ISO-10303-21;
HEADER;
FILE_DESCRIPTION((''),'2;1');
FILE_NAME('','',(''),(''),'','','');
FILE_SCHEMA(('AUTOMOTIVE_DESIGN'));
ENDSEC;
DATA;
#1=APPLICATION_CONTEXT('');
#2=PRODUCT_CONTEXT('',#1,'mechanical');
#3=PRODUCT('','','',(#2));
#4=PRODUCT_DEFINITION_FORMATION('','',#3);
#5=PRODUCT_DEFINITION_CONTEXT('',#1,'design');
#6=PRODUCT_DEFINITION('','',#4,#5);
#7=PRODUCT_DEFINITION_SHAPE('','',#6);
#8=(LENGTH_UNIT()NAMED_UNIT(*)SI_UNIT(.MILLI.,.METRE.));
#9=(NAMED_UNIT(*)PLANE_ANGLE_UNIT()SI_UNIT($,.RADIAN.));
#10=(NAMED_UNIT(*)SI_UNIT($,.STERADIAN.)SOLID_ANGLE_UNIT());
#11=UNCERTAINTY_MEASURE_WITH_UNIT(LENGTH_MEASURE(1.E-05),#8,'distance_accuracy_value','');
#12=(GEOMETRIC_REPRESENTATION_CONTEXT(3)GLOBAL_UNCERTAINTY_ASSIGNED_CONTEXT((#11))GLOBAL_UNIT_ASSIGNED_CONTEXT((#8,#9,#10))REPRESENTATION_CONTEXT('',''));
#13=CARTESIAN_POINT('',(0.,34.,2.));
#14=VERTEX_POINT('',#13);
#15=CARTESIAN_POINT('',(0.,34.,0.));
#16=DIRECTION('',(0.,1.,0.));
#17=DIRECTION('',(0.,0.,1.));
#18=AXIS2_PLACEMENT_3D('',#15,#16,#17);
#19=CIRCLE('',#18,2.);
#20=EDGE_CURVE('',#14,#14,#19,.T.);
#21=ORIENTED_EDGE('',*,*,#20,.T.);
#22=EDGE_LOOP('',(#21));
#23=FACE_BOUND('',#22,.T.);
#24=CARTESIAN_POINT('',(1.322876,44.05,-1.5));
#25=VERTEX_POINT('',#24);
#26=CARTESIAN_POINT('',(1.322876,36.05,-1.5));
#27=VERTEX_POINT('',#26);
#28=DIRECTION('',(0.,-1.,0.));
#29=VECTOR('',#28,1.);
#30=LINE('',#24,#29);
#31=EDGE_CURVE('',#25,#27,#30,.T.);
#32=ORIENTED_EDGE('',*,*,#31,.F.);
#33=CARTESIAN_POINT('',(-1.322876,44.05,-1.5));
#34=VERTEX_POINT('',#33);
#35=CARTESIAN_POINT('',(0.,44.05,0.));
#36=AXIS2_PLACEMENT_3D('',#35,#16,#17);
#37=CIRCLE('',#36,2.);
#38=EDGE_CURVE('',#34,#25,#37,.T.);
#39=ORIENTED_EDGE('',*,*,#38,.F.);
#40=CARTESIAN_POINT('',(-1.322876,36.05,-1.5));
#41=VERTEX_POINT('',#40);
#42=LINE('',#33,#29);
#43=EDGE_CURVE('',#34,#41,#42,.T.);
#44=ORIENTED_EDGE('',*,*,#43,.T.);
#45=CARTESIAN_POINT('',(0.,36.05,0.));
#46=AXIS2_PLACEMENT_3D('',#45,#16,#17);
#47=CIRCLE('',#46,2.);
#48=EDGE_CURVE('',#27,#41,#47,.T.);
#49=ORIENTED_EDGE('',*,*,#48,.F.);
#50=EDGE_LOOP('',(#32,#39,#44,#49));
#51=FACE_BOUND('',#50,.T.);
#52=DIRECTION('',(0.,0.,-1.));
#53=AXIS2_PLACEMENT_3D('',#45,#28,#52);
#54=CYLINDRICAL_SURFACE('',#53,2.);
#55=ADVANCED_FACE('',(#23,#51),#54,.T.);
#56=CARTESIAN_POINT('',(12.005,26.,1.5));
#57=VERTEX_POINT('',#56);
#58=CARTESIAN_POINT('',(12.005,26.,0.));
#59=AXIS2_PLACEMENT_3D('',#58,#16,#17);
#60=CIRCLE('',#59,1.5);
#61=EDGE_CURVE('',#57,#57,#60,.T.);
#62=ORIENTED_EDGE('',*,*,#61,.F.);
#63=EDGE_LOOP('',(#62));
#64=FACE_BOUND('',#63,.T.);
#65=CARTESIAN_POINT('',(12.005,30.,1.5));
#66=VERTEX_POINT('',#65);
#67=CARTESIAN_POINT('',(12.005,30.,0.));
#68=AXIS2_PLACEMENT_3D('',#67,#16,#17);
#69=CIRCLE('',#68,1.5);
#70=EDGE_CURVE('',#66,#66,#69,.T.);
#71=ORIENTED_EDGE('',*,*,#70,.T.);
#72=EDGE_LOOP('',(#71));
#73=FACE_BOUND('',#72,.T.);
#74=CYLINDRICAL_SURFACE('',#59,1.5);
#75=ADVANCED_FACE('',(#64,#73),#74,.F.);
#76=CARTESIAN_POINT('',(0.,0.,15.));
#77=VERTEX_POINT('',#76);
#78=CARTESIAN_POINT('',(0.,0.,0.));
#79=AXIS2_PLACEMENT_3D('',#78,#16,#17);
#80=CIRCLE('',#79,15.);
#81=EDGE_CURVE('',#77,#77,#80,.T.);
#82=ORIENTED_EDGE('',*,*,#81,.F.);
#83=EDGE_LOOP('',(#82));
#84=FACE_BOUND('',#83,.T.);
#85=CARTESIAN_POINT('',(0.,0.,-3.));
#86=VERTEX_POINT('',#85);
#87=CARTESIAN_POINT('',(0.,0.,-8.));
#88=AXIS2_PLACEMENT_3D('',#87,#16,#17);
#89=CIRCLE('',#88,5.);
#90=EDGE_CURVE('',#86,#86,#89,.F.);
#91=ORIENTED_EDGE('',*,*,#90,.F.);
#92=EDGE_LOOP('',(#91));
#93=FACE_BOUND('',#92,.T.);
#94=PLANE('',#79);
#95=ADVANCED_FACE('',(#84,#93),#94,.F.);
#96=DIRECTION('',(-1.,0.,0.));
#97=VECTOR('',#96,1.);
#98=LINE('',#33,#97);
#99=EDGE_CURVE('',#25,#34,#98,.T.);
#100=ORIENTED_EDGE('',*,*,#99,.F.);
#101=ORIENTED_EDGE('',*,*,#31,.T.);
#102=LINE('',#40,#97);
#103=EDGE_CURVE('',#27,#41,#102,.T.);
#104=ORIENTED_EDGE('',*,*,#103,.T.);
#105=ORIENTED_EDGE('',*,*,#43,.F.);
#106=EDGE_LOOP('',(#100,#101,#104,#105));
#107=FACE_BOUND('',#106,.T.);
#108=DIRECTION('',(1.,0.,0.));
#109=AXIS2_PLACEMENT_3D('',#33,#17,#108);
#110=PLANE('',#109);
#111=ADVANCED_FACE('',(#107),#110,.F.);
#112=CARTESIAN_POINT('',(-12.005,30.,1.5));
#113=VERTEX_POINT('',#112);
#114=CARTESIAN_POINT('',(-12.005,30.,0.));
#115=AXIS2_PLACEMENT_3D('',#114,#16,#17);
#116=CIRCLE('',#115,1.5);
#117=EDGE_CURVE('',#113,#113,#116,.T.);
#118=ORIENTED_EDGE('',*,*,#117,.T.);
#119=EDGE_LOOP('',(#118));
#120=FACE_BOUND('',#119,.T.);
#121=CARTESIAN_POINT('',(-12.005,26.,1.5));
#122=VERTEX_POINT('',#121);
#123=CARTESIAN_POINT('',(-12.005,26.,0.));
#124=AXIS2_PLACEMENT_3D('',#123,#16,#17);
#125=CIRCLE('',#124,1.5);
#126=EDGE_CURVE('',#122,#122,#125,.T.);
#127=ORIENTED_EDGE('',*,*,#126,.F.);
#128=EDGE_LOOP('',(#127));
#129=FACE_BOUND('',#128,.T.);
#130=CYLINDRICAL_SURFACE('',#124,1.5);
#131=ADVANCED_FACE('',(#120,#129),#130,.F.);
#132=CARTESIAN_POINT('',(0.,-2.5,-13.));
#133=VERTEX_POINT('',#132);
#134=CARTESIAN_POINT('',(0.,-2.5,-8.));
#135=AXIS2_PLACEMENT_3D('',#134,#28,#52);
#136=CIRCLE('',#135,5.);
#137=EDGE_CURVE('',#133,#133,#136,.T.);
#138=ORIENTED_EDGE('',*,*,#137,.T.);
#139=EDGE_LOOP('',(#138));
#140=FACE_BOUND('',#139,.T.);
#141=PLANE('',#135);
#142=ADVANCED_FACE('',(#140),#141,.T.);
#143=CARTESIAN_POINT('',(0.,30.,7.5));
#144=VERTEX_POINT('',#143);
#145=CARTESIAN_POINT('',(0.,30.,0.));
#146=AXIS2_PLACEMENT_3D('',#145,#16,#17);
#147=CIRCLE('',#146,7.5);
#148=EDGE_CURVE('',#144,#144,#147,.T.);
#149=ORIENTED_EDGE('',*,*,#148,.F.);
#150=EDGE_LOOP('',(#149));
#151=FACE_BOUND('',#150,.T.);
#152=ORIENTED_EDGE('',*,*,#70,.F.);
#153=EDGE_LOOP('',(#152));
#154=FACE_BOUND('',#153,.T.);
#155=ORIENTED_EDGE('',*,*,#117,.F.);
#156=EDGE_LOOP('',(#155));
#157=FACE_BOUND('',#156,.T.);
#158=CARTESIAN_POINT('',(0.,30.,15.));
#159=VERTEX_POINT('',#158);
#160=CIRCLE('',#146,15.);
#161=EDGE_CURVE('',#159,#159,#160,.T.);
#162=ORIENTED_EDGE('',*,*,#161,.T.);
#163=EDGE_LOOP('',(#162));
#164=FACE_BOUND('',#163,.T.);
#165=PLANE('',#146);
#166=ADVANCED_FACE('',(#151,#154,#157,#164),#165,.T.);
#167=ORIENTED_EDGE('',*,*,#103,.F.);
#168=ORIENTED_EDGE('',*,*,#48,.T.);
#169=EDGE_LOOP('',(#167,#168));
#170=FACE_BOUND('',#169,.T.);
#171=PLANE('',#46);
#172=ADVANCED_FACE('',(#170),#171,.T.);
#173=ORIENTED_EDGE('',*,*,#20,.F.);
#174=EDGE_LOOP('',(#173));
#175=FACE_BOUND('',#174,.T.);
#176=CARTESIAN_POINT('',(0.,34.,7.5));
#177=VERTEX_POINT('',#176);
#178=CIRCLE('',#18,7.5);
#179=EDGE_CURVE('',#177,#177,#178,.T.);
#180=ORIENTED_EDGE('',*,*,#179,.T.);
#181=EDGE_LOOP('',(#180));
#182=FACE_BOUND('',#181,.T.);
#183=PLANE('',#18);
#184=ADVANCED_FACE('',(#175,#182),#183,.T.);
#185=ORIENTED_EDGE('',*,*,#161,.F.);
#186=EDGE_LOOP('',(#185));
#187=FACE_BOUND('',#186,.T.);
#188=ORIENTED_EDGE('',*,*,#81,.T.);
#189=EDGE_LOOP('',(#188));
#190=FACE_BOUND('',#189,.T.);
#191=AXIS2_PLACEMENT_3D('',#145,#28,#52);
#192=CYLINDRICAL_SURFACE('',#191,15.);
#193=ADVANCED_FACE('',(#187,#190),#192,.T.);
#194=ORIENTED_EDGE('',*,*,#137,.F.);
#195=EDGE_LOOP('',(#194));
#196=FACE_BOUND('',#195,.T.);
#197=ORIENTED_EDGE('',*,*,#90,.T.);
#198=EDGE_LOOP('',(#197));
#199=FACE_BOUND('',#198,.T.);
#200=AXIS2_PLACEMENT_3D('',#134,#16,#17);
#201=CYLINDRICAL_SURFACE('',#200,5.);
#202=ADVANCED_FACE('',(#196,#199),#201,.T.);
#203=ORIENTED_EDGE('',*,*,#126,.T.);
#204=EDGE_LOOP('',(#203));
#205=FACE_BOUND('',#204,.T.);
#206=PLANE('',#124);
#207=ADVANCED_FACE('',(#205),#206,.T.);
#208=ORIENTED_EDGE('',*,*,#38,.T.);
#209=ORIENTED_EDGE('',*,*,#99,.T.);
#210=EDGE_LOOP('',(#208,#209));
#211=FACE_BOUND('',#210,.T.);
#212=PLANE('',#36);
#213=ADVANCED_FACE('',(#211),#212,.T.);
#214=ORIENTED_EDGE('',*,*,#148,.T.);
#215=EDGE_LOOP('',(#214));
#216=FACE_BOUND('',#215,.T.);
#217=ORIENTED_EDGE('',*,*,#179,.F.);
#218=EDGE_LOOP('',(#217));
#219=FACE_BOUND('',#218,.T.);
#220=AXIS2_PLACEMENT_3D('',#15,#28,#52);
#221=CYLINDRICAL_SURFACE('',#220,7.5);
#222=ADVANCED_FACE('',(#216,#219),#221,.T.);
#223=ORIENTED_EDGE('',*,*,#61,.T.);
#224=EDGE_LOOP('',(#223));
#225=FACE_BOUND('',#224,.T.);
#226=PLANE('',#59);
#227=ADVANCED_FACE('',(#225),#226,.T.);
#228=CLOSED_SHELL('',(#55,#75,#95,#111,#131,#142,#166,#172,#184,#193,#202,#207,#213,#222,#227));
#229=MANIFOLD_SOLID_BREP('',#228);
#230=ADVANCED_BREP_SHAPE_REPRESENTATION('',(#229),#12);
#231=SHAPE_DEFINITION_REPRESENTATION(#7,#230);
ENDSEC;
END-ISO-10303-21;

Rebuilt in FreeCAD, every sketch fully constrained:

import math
import FreeCAD as App
import Part
import Sketcher

doc = App.newDocument("Part")
params = doc.addObject("Spreadsheet::Sheet", "Params")
for row, (alias, value) in enumerate([
    ("sketch1_diameter", "30 mm"),
    ("pad1_length", "30 mm"),
    ("sketch2_diameter", "3 mm"),
    ("pocket1_length", "4 mm"),
    ("sketch3_diameter", "15 mm"),
    ("pad2_length", "4 mm"),
    ("sketch4_diameter", "4 mm"),
    ("pad3_length", "2.05 mm"),
    ("sketch5_radius", "2 mm"),
    ("pad4_length", "8 mm"),
    ("sketch6_diameter", "10 mm"),
    ("pad5_length", "2.5 mm"),
], start=1):
    params.set(f"A{row}", alias)
    params.set(f"B{row}", "=" + value)
    params.setAlias(f"B{row}", alias)

body = doc.addObject("PartDesign::Body", "Body")

# Sketch on XZ plane
sketch1 = body.newObject("Sketcher::SketchObject", "Sketch")
sketch1.AttachmentSupport = (doc.getObject("XZ_Plane"), [""])
sketch1.MapMode = "FlatFace"
sketch1.addGeometry(Part.Circle(App.Vector(0, 0, 0), App.Vector(0, 0, 1), 15), False)
sketch1.addConstraint([
    Sketcher.Constraint("Coincident", 0, 3, -1, 1),
    Sketcher.Constraint("Diameter", 0, 30.0),
])
sketch1.setExpression("Constraints[1]", "Params.sketch1_diameter")
pad1 = body.newObject("PartDesign::Pad", "Pad")
pad1.Profile = sketch1
pad1.setExpression("Length", "Params.pad1_length")
pad1.Reversed = True

# Sketch on XZ plane
sketch2 = body.newObject("Sketcher::SketchObject", "Sketch001")
sketch2.AttachmentSupport = (doc.getObject("XZ_Plane"), [""])
sketch2.MapMode = "FlatFace"
sketch2.AttachmentOffset = App.Placement(App.Vector(0, 0, -30), App.Rotation())
sketch2.addGeometry([
    Part.Circle(App.Vector(12, 0, 0), App.Vector(0, 0, 1), 1.5),
    Part.Circle(App.Vector(-12, 0, 0), App.Vector(0, 0, 1), 1.5),
], False)
sketch2.addConstraint([
    Sketcher.Constraint("Equal", 0, 1),
    Sketcher.Constraint("Symmetric", 0, 3, 1, 3, -1, 1),
    Sketcher.Constraint("PointOnObject", 0, 3, -1),
    Sketcher.Constraint("Diameter", 0, 3.0),
    Sketcher.Constraint("DistanceX", 1, 3, 0, 3, 24.01),
])
sketch2.setExpression("Constraints[3]", "Params.sketch2_diameter")
pocket1 = body.newObject("PartDesign::Pocket", "Pocket")
pocket1.Profile = sketch2
pocket1.setExpression("Length", "Params.pocket1_length")
pocket1.Reversed = True

# Sketch on XZ plane
sketch3 = body.newObject("Sketcher::SketchObject", "Sketch002")
sketch3.AttachmentSupport = (doc.getObject("XZ_Plane"), [""])
sketch3.MapMode = "FlatFace"
sketch3.AttachmentOffset = App.Placement(App.Vector(0, 0, -30), App.Rotation())
sketch3.addGeometry(Part.Circle(App.Vector(0, 0, 0), App.Vector(0, 0, 1), 8), False)
sketch3.addConstraint([
    Sketcher.Constraint("Coincident", 0, 3, -1, 1),
    Sketcher.Constraint("Diameter", 0, 15.0),
])
sketch3.setExpression("Constraints[1]", "Params.sketch3_diameter")
pad2 = body.newObject("PartDesign::Pad", "Pad001")
pad2.Profile = sketch3
pad2.setExpression("Length", "Params.pad2_length")
pad2.Reversed = True

# Sketch on XZ plane
sketch4 = body.newObject("Sketcher::SketchObject", "Sketch003")
sketch4.AttachmentSupport = (doc.getObject("XZ_Plane"), [""])
sketch4.MapMode = "FlatFace"
sketch4.AttachmentOffset = App.Placement(App.Vector(0, 0, -34), App.Rotation())
sketch4.addGeometry(Part.Circle(App.Vector(0, 0, 0), App.Vector(0, 0, 1), 2), False)
sketch4.addConstraint([
    Sketcher.Constraint("Coincident", 0, 3, -1, 1),
    Sketcher.Constraint("Diameter", 0, 4.0),
])
sketch4.setExpression("Constraints[1]", "Params.sketch4_diameter")
pad3 = body.newObject("PartDesign::Pad", "Pad002")
pad3.Profile = sketch4
pad3.setExpression("Length", "Params.pad3_length")
pad3.Reversed = True

# Sketch on XZ plane
sketch5 = body.newObject("Sketcher::SketchObject", "Sketch004")
sketch5.AttachmentSupport = (doc.getObject("XZ_Plane"), [""])
sketch5.MapMode = "FlatFace"
sketch5.AttachmentOffset = App.Placement(App.Vector(0, 0, -36.05), App.Rotation())
sketch5.addGeometry([
    Part.LineSegment(App.Vector(1.3, -1.5, 0), App.Vector(-1.3, -1.5, 0)),
    Part.ArcOfCircle(Part.Circle(App.Vector(0, 0, 0), App.Vector(0, 0, 1), 2), math.radians(-49), math.radians(229)),
], False)
sketch5.addConstraint([
    Sketcher.Constraint("Coincident", 0, 1, 1, 1),
    Sketcher.Constraint("Coincident", 1, 2, 0, 2),
    Sketcher.Constraint("Horizontal", 0),
    Sketcher.Constraint("Coincident", 1, 3, -1, 1),
    Sketcher.Constraint("Radius", 1, 2.0),
    Sketcher.Constraint("DistanceY", 0, 1, -1, 1, 1.5),
])
sketch5.setExpression("Constraints[4]", "Params.sketch5_radius")
pad4 = body.newObject("PartDesign::Pad", "Pad003")
pad4.Profile = sketch5
pad4.setExpression("Length", "Params.pad4_length")
pad4.Reversed = True

# Sketch on XZ plane
sketch6 = body.newObject("Sketcher::SketchObject", "Sketch005")
sketch6.AttachmentSupport = (doc.getObject("XZ_Plane"), [""])
sketch6.MapMode = "FlatFace"
sketch6.addGeometry(Part.Circle(App.Vector(0, -8, 0), App.Vector(0, 0, 1), 5), False)
sketch6.addConstraint([
    Sketcher.Constraint("PointOnObject", 0, 3, -2),
    Sketcher.Constraint("Diameter", 0, 10.0),
    Sketcher.Constraint("DistanceY", 0, 3, -1, 1, 8.0),
])
sketch6.setExpression("Constraints[1]", "Params.sketch6_diameter")
pad5 = body.newObject("PartDesign::Pad", "Pad004")
pad5.Profile = sketch6
pad5.setExpression("Length", "Params.pad5_length")

doc.recompute()
